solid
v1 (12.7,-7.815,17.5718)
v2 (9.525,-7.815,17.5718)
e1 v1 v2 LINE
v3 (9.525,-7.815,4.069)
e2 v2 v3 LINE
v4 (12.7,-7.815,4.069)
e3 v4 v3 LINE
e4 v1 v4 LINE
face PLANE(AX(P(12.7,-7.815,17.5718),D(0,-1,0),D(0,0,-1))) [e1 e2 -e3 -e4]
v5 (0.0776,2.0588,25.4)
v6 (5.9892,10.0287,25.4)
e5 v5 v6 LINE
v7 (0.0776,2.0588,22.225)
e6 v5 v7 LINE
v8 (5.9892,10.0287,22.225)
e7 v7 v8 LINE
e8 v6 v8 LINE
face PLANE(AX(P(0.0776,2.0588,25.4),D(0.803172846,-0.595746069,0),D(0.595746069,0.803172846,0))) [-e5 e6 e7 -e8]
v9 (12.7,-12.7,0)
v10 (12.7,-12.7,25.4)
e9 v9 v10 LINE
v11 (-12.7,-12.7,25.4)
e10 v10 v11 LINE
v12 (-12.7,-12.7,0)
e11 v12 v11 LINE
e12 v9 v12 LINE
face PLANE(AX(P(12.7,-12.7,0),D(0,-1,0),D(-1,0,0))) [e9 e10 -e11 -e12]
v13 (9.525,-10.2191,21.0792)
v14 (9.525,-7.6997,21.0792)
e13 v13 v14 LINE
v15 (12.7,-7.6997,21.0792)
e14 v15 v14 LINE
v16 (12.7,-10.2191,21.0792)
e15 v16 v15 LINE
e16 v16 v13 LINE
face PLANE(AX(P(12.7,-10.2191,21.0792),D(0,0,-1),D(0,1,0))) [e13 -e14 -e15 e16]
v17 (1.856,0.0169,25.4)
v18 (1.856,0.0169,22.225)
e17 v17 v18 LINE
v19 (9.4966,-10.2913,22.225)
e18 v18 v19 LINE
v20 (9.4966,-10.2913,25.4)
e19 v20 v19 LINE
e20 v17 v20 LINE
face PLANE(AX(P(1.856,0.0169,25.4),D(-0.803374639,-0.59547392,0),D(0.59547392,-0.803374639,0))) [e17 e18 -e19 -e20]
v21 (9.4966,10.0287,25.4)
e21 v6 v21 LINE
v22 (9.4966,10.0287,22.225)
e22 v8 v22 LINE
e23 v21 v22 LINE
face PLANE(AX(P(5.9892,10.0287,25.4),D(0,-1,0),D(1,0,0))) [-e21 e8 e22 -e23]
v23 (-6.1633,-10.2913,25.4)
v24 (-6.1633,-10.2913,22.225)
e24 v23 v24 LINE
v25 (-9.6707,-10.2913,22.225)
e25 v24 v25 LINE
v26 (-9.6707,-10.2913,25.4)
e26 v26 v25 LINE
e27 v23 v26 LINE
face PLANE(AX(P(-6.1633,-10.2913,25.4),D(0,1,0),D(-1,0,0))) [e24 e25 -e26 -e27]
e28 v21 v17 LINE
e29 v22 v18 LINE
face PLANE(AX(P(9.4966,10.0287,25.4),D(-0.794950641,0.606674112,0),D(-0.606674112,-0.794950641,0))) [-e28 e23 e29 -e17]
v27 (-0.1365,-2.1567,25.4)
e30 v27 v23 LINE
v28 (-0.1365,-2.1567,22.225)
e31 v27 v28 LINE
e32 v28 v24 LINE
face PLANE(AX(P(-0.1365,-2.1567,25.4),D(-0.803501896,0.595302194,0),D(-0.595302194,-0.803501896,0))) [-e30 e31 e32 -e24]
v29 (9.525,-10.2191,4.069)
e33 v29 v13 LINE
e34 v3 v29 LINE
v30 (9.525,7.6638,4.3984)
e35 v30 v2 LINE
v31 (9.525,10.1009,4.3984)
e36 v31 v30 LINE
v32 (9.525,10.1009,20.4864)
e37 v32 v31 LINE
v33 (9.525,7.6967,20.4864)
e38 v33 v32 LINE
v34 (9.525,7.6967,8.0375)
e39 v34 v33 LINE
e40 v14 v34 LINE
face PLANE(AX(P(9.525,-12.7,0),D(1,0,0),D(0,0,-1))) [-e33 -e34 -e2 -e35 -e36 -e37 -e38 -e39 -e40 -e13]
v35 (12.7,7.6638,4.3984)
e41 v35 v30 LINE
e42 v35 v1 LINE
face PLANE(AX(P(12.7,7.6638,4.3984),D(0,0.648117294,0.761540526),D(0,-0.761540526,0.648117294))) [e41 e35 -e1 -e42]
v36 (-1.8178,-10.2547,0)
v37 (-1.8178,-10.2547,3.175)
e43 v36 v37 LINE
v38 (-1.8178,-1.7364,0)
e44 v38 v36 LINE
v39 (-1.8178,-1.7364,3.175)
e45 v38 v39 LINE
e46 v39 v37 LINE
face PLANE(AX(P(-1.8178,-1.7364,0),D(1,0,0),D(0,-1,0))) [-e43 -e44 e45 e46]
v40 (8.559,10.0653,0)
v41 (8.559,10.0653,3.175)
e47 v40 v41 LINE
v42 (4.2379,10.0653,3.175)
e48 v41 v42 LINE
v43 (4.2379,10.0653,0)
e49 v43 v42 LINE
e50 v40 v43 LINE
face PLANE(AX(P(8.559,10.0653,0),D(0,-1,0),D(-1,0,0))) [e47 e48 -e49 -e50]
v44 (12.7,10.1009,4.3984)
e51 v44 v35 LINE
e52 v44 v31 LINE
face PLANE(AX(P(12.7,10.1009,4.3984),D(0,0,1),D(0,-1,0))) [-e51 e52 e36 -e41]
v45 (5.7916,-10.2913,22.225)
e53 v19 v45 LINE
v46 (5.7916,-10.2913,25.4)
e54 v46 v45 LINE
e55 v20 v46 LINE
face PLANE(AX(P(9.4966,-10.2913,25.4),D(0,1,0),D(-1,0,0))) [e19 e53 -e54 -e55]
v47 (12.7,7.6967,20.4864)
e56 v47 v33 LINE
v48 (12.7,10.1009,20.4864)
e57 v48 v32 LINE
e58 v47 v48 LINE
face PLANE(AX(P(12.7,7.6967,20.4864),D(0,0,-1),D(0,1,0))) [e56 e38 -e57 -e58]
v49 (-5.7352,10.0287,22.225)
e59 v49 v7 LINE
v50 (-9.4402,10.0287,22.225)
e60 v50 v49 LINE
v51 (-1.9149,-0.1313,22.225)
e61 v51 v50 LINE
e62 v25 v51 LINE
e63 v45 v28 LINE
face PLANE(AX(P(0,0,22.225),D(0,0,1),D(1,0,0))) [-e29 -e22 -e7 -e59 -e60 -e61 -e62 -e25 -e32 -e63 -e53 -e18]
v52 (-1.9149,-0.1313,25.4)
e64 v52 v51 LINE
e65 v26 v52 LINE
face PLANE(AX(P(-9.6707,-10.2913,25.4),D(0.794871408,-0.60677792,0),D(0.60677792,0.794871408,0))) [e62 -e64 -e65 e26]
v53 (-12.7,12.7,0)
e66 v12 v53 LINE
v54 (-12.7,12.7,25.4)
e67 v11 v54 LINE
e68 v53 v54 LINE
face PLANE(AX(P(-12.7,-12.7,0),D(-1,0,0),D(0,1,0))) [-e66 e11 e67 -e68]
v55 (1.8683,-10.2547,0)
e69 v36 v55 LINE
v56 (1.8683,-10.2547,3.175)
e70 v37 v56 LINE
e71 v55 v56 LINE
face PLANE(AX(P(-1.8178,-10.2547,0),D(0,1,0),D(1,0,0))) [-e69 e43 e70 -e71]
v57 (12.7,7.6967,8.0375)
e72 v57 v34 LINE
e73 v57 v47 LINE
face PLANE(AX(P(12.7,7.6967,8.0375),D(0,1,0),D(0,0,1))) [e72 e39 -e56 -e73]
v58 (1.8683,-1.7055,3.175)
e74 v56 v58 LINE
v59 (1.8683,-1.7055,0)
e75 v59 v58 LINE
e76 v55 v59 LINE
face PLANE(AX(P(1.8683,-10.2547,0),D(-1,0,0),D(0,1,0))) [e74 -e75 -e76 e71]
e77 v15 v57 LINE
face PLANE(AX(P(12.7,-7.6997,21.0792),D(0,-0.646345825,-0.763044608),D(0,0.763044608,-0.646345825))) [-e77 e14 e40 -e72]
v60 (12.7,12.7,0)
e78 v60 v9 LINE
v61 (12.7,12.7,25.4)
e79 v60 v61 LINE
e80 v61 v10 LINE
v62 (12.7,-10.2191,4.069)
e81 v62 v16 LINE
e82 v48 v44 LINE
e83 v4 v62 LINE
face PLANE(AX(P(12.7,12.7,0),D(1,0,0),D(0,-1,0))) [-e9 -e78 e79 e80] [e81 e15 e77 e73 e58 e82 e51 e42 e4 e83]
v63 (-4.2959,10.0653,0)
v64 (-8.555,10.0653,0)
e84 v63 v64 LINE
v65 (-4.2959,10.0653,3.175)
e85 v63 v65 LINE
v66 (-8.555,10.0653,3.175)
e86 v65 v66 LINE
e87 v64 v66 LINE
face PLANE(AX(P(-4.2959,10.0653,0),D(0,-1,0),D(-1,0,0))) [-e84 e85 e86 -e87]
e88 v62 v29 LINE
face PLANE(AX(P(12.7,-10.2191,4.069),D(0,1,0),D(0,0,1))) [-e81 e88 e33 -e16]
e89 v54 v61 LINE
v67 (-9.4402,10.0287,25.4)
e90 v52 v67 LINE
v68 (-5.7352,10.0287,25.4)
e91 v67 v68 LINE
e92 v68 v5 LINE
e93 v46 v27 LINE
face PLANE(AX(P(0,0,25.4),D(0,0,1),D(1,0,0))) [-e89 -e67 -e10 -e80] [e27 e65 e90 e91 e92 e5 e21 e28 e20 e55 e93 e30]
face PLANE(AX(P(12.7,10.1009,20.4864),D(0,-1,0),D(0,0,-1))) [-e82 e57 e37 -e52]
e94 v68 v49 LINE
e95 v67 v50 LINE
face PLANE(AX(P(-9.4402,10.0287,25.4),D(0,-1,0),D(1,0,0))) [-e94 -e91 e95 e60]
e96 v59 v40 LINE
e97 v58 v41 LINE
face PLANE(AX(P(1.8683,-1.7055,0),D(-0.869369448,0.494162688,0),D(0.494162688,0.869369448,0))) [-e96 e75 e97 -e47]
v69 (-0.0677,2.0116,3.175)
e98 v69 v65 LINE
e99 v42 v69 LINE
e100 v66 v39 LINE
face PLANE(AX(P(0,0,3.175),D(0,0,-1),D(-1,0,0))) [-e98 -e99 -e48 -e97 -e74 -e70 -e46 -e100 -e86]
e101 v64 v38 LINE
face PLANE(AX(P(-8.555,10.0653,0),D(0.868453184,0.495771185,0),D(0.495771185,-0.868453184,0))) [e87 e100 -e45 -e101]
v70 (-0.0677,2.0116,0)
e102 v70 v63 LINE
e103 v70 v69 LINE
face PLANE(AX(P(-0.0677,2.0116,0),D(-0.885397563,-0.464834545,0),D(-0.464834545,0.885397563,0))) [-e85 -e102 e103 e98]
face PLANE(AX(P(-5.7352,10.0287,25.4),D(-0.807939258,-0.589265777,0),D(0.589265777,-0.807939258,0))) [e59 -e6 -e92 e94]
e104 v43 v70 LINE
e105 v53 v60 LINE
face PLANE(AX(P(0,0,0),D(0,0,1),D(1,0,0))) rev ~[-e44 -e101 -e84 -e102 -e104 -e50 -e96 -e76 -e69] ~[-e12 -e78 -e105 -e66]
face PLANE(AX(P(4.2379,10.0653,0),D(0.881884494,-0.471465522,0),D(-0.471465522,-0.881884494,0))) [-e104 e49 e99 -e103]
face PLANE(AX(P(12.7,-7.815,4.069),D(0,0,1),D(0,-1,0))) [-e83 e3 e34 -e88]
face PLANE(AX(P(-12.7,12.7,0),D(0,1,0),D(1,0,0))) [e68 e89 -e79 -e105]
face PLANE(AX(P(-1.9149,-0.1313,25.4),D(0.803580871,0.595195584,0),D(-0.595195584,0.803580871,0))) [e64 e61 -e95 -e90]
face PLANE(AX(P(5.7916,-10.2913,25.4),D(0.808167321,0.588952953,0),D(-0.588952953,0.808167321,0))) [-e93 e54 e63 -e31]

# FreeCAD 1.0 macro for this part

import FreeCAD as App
import Part
import Sketcher

V = App.Vector
Q = App.Units.Quantity


def add_polygon(sketch, points):
    """Adds a closed chain of lines whose ends are joined by coincident constraints."""
    first, n = sketch.GeometryCount, len(points)
    for a, b in zip(points, points[1:] + points[:1]):
        sketch.addGeometry(Part.LineSegment(App.Vector(*a, 0), App.Vector(*b, 0)), False)
    for i in range(n):
        sketch.addConstraint(Sketcher.Constraint("Coincident", first + i, 2, first + (i + 1) % n, 1))

doc = App.newDocument("Part")
params = doc.addObject("Spreadsheet::Sheet", "Params")
for row, (alias, value) in enumerate([
    ("sketch1_width", "1 in"),
    ("pad1_length", "1 in"),
    ("pocket1_length", "0.125 in"),
    ("pocket2_length", "0.125 in"),
    ("pocket3_length", "0.125 in"),
], start=1):
    params.set(f"A{row}", alias)
    params.set(f"B{row}", "=" + value)
    params.setAlias(f"B{row}", alias)

body = doc.addObject("PartDesign::Body", "Body")

# Sketch on XY plane
sketch1 = doc.addObject("Sketcher::SketchObject", "Sketch")
body.addObject(sketch1)
sketch1.AttachmentSupport = (doc.XY_Plane, [""])
sketch1.MapMode = "FlatFace"
add_polygon(sketch1, [(-13, -13), (13, -13), (13, 13), (-13, 13)])  # lines 0-3
sketch1.addConstraint(Sketcher.Constraint("Horizontal", 0))
sketch1.addConstraint(Sketcher.Constraint("Vertical", 1))
sketch1.addConstraint(Sketcher.Constraint("Horizontal", 2))
sketch1.addConstraint(Sketcher.Constraint("Vertical", 3))
sketch1.addConstraint(Sketcher.Constraint("Symmetric", 0, 2, 2, 2, -1, 1))
sketch1.addConstraint(Sketcher.Constraint("Equal", 2, 1))
sketch1.addConstraint(Sketcher.Constraint("DistanceX", 0, 1, 0, 2, Q("1 in")))
sketch1.setExpression("Constraints[10]", "Params.sketch1_width")
pad1 = doc.addObject("PartDesign::Pad", "Pad")
body.addObject(pad1)
pad1.Profile = sketch1
pad1.setExpression("Length", "Params.pad1_length")

# Sketch on XY plane
sketch2 = doc.addObject("Sketcher::SketchObject", "Sketch001")
body.addObject(sketch2)
sketch2.AttachmentSupport = (doc.XY_Plane, [""])
sketch2.MapMode = "FlatFace"
sketch2.AttachmentOffset = App.Placement(V(0, 0, 1 * 25.4), App.Rotation())
add_polygon(sketch2, [(5.7916, -10.2913), (9.4966, -10.2913), (1.856, 0.0169), (9.4966, 10.0287), (5.9892, 10.0287), (0.0776, 2.0588), (-5.7352, 10.0287), (-9.4402, 10.0287), (-1.9149, -0.1313), (-9.6707, -10.2913), (-6.1633, -10.2913), (-0.1365, -2.1567)])  # lines 0-11
sketch2.addConstraint(Sketcher.Constraint("Horizontal", 0))
sketch2.addConstraint(Sketcher.Constraint("Horizontal", 3))
sketch2.addConstraint(Sketcher.Constraint("Horizontal", 6))
sketch2.addConstraint(Sketcher.Constraint("Horizontal", 9))
sketch2.addConstraint(Sketcher.Constraint("DistanceY", 0, 2, 2, 2, Q("0.8 in")))
sketch2.addConstraint(Sketcher.Constraint("DistanceY", 0, 2, 5, 2, Q("0.8 in")))
sketch2.addConstraint(Sketcher.Constraint("DistanceY", 7, 2, 5, 2, Q("0.4 in")))
sketch2.addConstraint(Sketcher.Constraint("DistanceY", 8, 2, 7, 2, Q("0.4 in")))
sketch2.addConstraint(Sketcher.Constraint("DistanceX", 0, 1, 0, 2, 3.705))
sketch2.addConstraint(Sketcher.Constraint("DistanceX", 3, 2, 3, 1, 3.5074))
sketch2.addConstraint(Sketcher.Constraint("DistanceX", 6, 2, 6, 1, 3.705))
sketch2.addConstraint(Sketcher.Constraint("DistanceX", 9, 1, 9, 2, 3.5074))
sketch2.addConstraint(Sketcher.Constraint("DistanceX", -1, 1, 3, 2, Q("0.2358 in")))
sketch2.addConstraint(Sketcher.Constraint("DistanceX", 5, 2, -1, 1, Q("0.2258 in")))
sketch2.addConstraint(Sketcher.Constraint("DistanceX", 7, 2, -1, 1, Q("0.0754 in")))
sketch2.addConstraint(Sketcher.Constraint("DistanceY", 10, 2, -1, 1, Q("0.0849 in")))
sketch2.addConstraint(Sketcher.Constraint("DistanceX", 1, 2, 0, 2, Q("0.3008 in")))
sketch2.addConstraint(Sketcher.Constraint("DistanceX", 1, 2, 2, 2, Q("0.3008 in")))
sketch2.addConstraint(Sketcher.Constraint("DistanceY", 1, 2, 4, 2, Q("0.0804 in")))
sketch2.addConstraint(Sketcher.Constraint("DistanceX", 8, 2, 1, 2, Q("0.4538 in")))
sketch2.addConstraint(Sketcher.Constraint("DistanceX", 8, 2, 4, 2, Q("0.3838 in")))
sketch2.addConstraint(Sketcher.Constraint("DistanceX", 10, 2, 11, 2, Q("0.2334 in")))
sketch2.addConstraint(Sketcher.Constraint("Distance", 1, 12.8311))
sketch2.addConstraint(Sketcher.Constraint("Distance", 10, 10.124))
pocket1 = doc.addObject("PartDesign::Pocket", "Pocket")
body.addObject(pocket1)
pocket1.Profile = sketch2
pocket1.setExpression("Length", "Params.pocket1_length")

# Sketch on YZ plane
sketch3 = doc.addObject("Sketcher::SketchObject", "Sketch002")
body.addObject(sketch3)
sketch3.AttachmentSupport = (doc.YZ_Plane, [""])
sketch3.MapMode = "FlatFace"
sketch3.AttachmentOffset = App.Placement(V(0, 0, 0.5 * 25.4), App.Rotation())
add_polygon(sketch3, [(-10.2, 21.1), (-10.2, 4.1), (-7.8, 4.1), (-7.8, 17.6), (7.7, 4.4), (10.1, 4.4), (10.1, 20.5), (7.7, 20.5), (7.7, 8), (-7.7, 21.1)])  # lines 0-9
sketch3.addConstraint(Sketcher.Constraint("Vertical", 0))
sketch3.addConstraint(Sketcher.Constraint("Horizontal", 1))
sketch3.addConstraint(Sketcher.Constraint("Vertical", 2))
sketch3.addConstraint(Sketcher.Constraint("Horizontal", 4))
sketch3.addConstraint(Sketcher.Constraint("Vertical", 5))
sketch3.addConstraint(Sketcher.Constraint("Horizontal", 6))
sketch3.addConstraint(Sketcher.Constraint("Vertical", 7))
sketch3.addConstraint(Sketcher.Constraint("Horizontal", 9))
sketch3.addConstraint(Sketcher.Constraint("Equal", 1, 6))
sketch3.addConstraint(Sketcher.Constraint("Angle", 3, Q("-40.3998 deg")))
sketch3.addConstraint(Sketcher.Constraint("DistanceX", 0, 2, 4, 2, Q("0.8 in")))
sketch3.addConstraint(Sketcher.Constraint("DistanceX", 9, 2, 9, 1, Q("0.0992 in")))
sketch3.addConstraint(Sketcher.Constraint("DistanceY", 0, 2, 0, 1, Q("0.6697 in")))
sketch3.addConstraint(Sketcher.Constraint("DistanceY", 2, 1, 2, 2, Q("0.5316 in")))
sketch3.addConstraint(Sketcher.Constraint("Distance", 8, Q("0.7944 in")))
sketch3.addConstraint(Sketcher.Constraint("DistanceX", 1, 1, 1, 2, 2.404))
sketch3.addConstraint(Sketcher.Constraint("DistanceX", 4, 1, 4, 2, 2.437))
sketch3.addConstraint(Sketcher.Constraint("DistanceY", 5, 1, 5, 2, 16.088))
sketch3.addConstraint(Sketcher.Constraint("DistanceY", -1, 1, 0, 2, Q("0.1602 in")))
sketch3.addConstraint(Sketcher.Constraint("DistanceX", 0, 2, -1, 1, 10.219))
pocket2 = doc.addObject("PartDesign::Pocket", "Pocket001")
body.addObject(pocket2)
pocket2.Profile = sketch3
pocket2.setExpression("Length", "Params.pocket2_length")

# Sketch on XY plane
sketch4 = doc.addObject("Sketcher::SketchObject", "Sketch003")
body.addObject(sketch4)
sketch4.AttachmentSupport = (doc.XY_Plane, [""])
sketch4.MapMode = "FlatFace"
add_polygon(sketch4, [(1.9, -1.7), (1.9, -10.3), (-1.8, -10.3), (-1.8, -1.7), (-8.6, 10.1), (-4.3, 10.1), (-0.1, 2), (4.2, 10.1), (8.6, 10.1)])  # lines 0-8
sketch4.addConstraint(Sketcher.Constraint("Vertical", 0))
sketch4.addConstraint(Sketcher.Constraint("Horizontal", 1))
sketch4.addConstraint(Sketcher.Constraint("Vertical", 2))
sketch4.addConstraint(Sketcher.Constraint("Horizontal", 4))
sketch4.addConstraint(Sketcher.Constraint("Horizontal", 7))
sketch4.addConstraint(Sketcher.Constraint("Horizontal", 4, 2, 6, 2))
sketch4.addConstraint(Sketcher.Constraint("Angle", 5, Q("-62.3005 deg")))
sketch4.addConstraint(Sketcher.Constraint("DistanceY", 1, 2, 3, 2, Q("0.8 in")))
sketch4.addConstraint(Sketcher.Constraint("Angle", 3, Q("119.7206 deg")))
sketch4.addConstraint(Sketcher.Constraint("Angle", 6, Q("61.8705 deg")))
sketch4.addConstraint(Sketcher.Constraint("DistanceX", 1, 2, 1, 1, 3.686))
sketch4.addConstraint(Sketcher.Constraint("DistanceX", 4, 1, 4, 2, 4.259))
sketch4.addConstraint(Sketcher.Constraint("DistanceX", 7, 1, 7, 2, 4.321))
sketch4.addConstraint(Sketcher.Constraint("DistanceY", 0, 2, 0, 1, 8.5492))
sketch4.addConstraint(Sketcher.Constraint("DistanceY", 2, 1, 2, 2, 8.5183))
sketch4.addConstraint(Sketcher.Constraint("DistanceX", 3, 2, -1, 1, Q("0.3368 in")))
sketch4.addConstraint(Sketcher.Constraint("DistanceY", -1, 1, 5, 2, Q("0.0792 in")))
sketch4.addConstraint(Sketcher.Constraint("DistanceX", 2, 2, 5, 2, Q("0.0689 in")))
pocket3 = doc.addObject("PartDesign::Pocket", "Pocket002")
body.addObject(pocket3)
pocket3.Profile = sketch4
pocket3.setExpression("Length", "Params.pocket3_length")
pocket3.Reversed = True

doc.recompute()
